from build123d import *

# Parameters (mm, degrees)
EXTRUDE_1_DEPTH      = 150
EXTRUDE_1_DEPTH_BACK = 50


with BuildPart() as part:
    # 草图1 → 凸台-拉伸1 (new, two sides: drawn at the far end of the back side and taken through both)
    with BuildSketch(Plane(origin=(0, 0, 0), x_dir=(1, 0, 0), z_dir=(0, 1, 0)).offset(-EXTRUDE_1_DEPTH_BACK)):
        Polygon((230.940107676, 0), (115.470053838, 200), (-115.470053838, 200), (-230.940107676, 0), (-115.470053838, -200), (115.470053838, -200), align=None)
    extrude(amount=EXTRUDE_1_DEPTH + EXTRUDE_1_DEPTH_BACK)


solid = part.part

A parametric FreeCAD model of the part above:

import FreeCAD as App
import Part
import Sketcher
from FreeCAD import Vector
Q = App.Units.Quantity


def add_polygon(sketch, points):
    """Adds a closed chain of lines whose ends are joined by coincident constraints."""
    first, n = sketch.GeometryCount, len(points)
    for a, b in zip(points, points[1:] + points[:1]):
        sketch.addGeometry(Part.LineSegment(App.Vector(*a, 0), App.Vector(*b, 0)), False)
    for i in range(n):
        sketch.addConstraint(Sketcher.Constraint("Coincident", first + i, 2, first + (i + 1) % n, 1))

doc = App.newDocument("Part")
body = doc.addObject("PartDesign::Body", "Body")

# Sketch on XZ plane
sketch1 = doc.addObject("Sketcher::SketchObject", "Sketch")
body.addObject(sketch1)
sketch1.AttachmentSupport = (doc.XZ_Plane, [""])
sketch1.MapMode = "FlatFace"
add_polygon(sketch1, [(231, 0), (115, -200), (-115, -200), (-231, 0), (-115, 200), (115, 200)])  # lines 0-5
sketch1.addConstraint([
    Sketcher.Constraint("Horizontal", 1),
    Sketcher.Constraint("Horizontal", 4),
    Sketcher.Constraint("Symmetric", 0, 2, 3, 2, -1, 1),
    Sketcher.Constraint("Symmetric", 2, 2, 5, 2, -1, 1),
    Sketcher.Constraint("PointOnObject", 2, 2, -1),
    Sketcher.Constraint("Parallel", 2, 5),
    Sketcher.Constraint("Vertical", 1, 2, 3, 2),
    Sketcher.Constraint("Angle", 0, Q("-120 deg")),
    Sketcher.Constraint("DistanceY", 0, 2, -1, 1, Q("200 mm")),
    Sketcher.Constraint("DistanceX", 1, 2, 1, 1, Q("230.940108 mm")),
])
pad1 = doc.addObject("PartDesign::Pad", "Pad")
body.addObject(pad1)
pad1.Profile = sketch1
pad1.Type = "TwoLengths"
pad1.Length = 150
pad1.Length2 = 50
pad1.Reversed = True

doc.recompute()
